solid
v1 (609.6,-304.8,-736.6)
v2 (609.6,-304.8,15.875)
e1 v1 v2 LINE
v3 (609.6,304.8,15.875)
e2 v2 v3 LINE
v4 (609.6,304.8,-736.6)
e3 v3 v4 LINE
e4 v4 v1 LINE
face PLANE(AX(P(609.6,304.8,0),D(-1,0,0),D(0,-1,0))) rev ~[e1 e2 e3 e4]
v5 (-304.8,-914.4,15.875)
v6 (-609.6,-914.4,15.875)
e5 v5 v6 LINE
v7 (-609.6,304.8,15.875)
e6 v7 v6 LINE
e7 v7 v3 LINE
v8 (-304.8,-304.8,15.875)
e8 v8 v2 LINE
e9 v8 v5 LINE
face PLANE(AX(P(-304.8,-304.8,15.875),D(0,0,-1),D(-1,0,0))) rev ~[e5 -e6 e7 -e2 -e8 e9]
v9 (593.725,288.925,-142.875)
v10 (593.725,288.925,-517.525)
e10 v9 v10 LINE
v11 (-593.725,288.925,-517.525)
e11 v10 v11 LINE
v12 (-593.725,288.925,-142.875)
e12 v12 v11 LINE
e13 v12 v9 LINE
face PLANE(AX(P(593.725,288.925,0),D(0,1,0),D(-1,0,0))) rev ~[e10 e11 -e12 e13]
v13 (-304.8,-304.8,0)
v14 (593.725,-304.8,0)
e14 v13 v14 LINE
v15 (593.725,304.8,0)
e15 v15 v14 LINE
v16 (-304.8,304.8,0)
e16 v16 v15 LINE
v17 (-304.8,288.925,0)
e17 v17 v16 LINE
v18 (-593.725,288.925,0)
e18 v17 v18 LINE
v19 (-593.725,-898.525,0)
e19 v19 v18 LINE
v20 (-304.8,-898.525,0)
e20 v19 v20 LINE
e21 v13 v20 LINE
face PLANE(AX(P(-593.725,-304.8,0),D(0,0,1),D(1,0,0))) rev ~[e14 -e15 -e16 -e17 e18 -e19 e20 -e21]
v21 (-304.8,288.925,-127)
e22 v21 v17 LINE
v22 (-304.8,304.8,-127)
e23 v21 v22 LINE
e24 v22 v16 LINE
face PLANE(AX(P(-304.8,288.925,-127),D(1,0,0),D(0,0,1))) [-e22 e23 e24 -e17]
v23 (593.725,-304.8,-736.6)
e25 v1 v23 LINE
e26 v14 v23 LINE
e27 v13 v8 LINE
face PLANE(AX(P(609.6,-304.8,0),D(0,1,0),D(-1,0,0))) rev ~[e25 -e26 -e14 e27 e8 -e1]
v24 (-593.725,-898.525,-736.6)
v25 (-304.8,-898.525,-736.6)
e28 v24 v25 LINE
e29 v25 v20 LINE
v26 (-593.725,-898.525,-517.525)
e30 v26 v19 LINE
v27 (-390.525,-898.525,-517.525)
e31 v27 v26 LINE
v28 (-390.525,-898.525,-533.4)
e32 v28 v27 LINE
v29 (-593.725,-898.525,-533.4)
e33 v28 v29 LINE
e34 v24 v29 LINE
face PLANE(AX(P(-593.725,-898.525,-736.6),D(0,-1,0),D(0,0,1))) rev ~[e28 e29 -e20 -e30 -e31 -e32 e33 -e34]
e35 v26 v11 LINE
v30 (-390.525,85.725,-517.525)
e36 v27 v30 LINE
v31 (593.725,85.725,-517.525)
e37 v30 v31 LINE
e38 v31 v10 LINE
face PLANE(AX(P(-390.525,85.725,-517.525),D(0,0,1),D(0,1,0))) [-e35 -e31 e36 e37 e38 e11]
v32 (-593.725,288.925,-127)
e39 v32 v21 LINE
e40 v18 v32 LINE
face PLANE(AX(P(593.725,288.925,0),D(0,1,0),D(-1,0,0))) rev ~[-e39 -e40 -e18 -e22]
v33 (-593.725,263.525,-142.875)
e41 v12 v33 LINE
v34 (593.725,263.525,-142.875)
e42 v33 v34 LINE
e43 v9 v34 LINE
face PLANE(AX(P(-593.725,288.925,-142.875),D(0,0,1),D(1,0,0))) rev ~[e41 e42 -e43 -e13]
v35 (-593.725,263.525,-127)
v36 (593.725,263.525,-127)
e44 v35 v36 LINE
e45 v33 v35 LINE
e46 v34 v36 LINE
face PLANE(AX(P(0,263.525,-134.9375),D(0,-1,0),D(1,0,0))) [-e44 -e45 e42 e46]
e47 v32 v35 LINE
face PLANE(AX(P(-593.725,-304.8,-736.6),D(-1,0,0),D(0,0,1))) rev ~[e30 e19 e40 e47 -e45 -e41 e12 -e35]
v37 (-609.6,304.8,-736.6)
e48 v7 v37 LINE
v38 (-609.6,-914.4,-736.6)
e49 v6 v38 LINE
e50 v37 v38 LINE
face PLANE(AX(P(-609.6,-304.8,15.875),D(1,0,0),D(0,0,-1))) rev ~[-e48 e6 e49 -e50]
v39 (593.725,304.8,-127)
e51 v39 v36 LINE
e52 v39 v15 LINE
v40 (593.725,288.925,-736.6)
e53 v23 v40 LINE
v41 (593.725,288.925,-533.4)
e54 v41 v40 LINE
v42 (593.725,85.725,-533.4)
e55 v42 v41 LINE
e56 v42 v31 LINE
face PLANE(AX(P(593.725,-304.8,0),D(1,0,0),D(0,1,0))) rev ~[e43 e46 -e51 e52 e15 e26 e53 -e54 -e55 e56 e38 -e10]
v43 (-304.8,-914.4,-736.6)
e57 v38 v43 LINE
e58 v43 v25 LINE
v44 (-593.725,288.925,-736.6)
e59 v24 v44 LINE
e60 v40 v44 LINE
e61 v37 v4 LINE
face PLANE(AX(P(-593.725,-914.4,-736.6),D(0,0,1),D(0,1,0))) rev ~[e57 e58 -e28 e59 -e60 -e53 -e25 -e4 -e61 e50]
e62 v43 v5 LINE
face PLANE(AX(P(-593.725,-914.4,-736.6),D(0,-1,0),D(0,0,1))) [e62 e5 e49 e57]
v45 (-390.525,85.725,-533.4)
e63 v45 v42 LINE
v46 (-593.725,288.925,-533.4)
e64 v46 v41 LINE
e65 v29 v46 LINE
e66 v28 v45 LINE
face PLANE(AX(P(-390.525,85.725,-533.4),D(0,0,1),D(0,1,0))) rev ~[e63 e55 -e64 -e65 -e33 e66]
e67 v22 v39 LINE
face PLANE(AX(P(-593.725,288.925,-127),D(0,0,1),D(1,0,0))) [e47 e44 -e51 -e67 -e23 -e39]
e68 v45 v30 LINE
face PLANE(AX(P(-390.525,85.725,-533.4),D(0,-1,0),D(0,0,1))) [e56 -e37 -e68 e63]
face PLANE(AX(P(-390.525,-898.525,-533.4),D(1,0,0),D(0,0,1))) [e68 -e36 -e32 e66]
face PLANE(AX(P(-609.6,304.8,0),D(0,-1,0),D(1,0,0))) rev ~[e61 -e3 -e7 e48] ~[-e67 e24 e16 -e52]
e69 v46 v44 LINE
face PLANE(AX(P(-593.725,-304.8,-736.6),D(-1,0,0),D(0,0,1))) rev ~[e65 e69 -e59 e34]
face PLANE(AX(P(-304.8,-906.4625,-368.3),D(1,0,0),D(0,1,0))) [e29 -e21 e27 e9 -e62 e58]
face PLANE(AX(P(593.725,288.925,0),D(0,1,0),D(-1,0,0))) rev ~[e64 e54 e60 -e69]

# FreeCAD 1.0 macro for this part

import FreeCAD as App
import Part
import Sketcher
Q = App.Units.Quantity

doc = App.newDocument("Part")
body = doc.addObject("PartDesign::Body", "Body")

# Sketch on XY plane
sketch1 = body.newObject("Sketcher::SketchObject", "Sketch")
sketch1.AttachmentSupport = (doc.getObject("XY_Plane"), [""])
sketch1.MapMode = "FlatFace"
sketch1.addGeometry(Part.LineSegment(App.Vector(-609.6, 304.8, 0), App.Vector(-609.6, -304.8, 0)), False)
sketch1.addGeometry(Part.LineSegment(App.Vector(-609.6, -304.8, 0), App.Vector(609.6, -304.8, 0)), False)
sketch1.addGeometry(Part.LineSegment(App.Vector(609.6, -304.8, 0), App.Vector(609.6, 304.8, 0)), False)
sketch1.addGeometry(Part.LineSegment(App.Vector(609.6, 304.8, 0), App.Vector(-609.6, 304.8, 0)), False)
sketch1.addConstraint(Sketcher.Constraint("Coincident", 0, 2, 1, 1))
sketch1.addConstraint(Sketcher.Constraint("Coincident", 1, 2, 2, 1))
sketch1.addConstraint(Sketcher.Constraint("Coincident", 2, 2, 3, 1))
sketch1.addConstraint(Sketcher.Constraint("Coincident", 3, 2, 0, 1))
sketch1.addConstraint(Sketcher.Constraint("Vertical", 0))
sketch1.addConstraint(Sketcher.Constraint("Horizontal", 1))
sketch1.addConstraint(Sketcher.Constraint("Vertical", 2))
sketch1.addConstraint(Sketcher.Constraint("Horizontal", 3))
sketch1.addConstraint(Sketcher.Constraint("Symmetric", 0, 2, 2, 2, -1, 1))
sketch1.addConstraint(Sketcher.Constraint("DistanceX", 1, 1, 1, 2, Q("48 in")))
sketch1.addConstraint(Sketcher.Constraint("DistanceY", 0, 2, 0, 1, Q("24 in")))
pad1 = body.newObject("PartDesign::Pad", "Pad")
pad1.Profile = sketch1
pad1.Length = Q("0.625 in")

# Sketch on XY plane
sketch2 = body.newObject("Sketcher::SketchObject", "Sketch001")
sketch2.AttachmentSupport = (doc.getObject("XY_Plane"), [""])
sketch2.MapMode = "FlatFace"
sketch2.addGeometry(Part.LineSegment(App.Vector(593.725, 288.925, 0), App.Vector(-593.725, 288.925, 0)), False)
sketch2.addGeometry(Part.LineSegment(App.Vector(-593.725, 288.925, 0), App.Vector(-593.725, -304.8, 0)), False)
sketch2.addGeometry(Part.LineSegment(App.Vector(-593.725, -304.8, 0), App.Vector(-609.6, -304.8, 0)), False)
sketch2.addGeometry(Part.LineSegment(App.Vector(-609.6, -304.8, 0), App.Vector(-609.6, 304.8, 0)), False)
sketch2.addGeometry(Part.LineSegment(App.Vector(-609.6, 304.8, 0), App.Vector(609.6, 304.8, 0)), False)
sketch2.addGeometry(Part.LineSegment(App.Vector(609.6, 304.8, 0), App.Vector(609.6, -304.8, 0)), False)
sketch2.addGeometry(Part.LineSegment(App.Vector(609.6, -304.8, 0), App.Vector(593.725, -304.8, 0)), False)
sketch2.addGeometry(Part.LineSegment(App.Vector(593.725, -304.8, 0), App.Vector(593.725, 288.925, 0)), False)
sketch2.addConstraint(Sketcher.Constraint("Coincident", 0, 2, 1, 1))
sketch2.addConstraint(Sketcher.Constraint("Coincident", 1, 2, 2, 1))
sketch2.addConstraint(Sketcher.Constraint("Coincident", 2, 2, 3, 1))
sketch2.addConstraint(Sketcher.Constraint("Coincident", 3, 2, 4, 1))
sketch2.addConstraint(Sketcher.Constraint("Coincident", 4, 2, 5, 1))
sketch2.addConstraint(Sketcher.Constraint("Coincident", 5, 2, 6, 1))
sketch2.addConstraint(Sketcher.Constraint("Coincident", 6, 2, 7, 1))
sketch2.addConstraint(Sketcher.Constraint("Coincident", 7, 2, 0, 1))
sketch2.addConstraint(Sketcher.Constraint("Horizontal", 0))
sketch2.addConstraint(Sketcher.Constraint("Vertical", 1))
sketch2.addConstraint(Sketcher.Constraint("Horizontal", 2))
sketch2.addConstraint(Sketcher.Constraint("Vertical", 3))
sketch2.addConstraint(Sketcher.Constraint("Horizontal", 4))
sketch2.addConstraint(Sketcher.Constraint("Vertical", 5))
sketch2.addConstraint(Sketcher.Constraint("Horizontal", 6))
sketch2.addConstraint(Sketcher.Constraint("Vertical", 7))
sketch2.addConstraint(Sketcher.Constraint("Symmetric", 2, 2, 4, 2, -1, 1))
sketch2.addConstraint(Sketcher.Constraint("Symmetric", 1, 2, 6, 2, -2))
sketch2.addConstraint(Sketcher.Constraint("DistanceX", 4, 1, 4, 2, Q("48 in")))
sketch2.addConstraint(Sketcher.Constraint("DistanceY", 3, 1, 3, 2, Q("24 in")))
sketch2.addConstraint(Sketcher.Constraint("DistanceX", 0, 2, 0, 1, Q("46.75 in")))
sketch2.addConstraint(Sketcher.Constraint("DistanceY", 1, 2, 1, 1, Q("23.375 in")))
pad2 = body.newObject("PartDesign::Pad", "Pad001")
pad2.Profile = sketch2
pad2.Length = Q("29 in")
pad2.Reversed = True

# Sketch on XZ plane
sketch3 = body.newObject("Sketcher::SketchObject", "Sketch002")
sketch3.AttachmentSupport = (doc.getObject("XZ_Plane"), [""])
sketch3.MapMode = "FlatFace"
sketch3.AttachmentOffset = App.Placement(App.Vector(0, 0, -11.375 * 25.4), App.Rotation())
sketch3.addGeometry(Part.LineSegment(App.Vector(-593.725, -127, 0), App.Vector(-593.725, -142.875, 0)), False)
sketch3.addGeometry(Part.LineSegment(App.Vector(-593.725, -142.875, 0), App.Vector(593.725, -142.875, 0)), False)
sketch3.addGeometry(Part.LineSegment(App.Vector(593.725, -142.875, 0), App.Vector(593.725, -127, 0)), False)
sketch3.addGeometry(Part.LineSegment(App.Vector(593.725, -127, 0), App.Vector(-593.725, -127, 0)), False)
sketch3.addConstraint(Sketcher.Constraint("Coincident", 0, 2, 1, 1))
sketch3.addConstraint(Sketcher.Constraint("Coincident", 1, 2, 2, 1))
sketch3.addConstraint(Sketcher.Constraint("Coincident", 2, 2, 3, 1))
sketch3.addConstraint(Sketcher.Constraint("Coincident", 3, 2, 0, 1))
sketch3.addConstraint(Sketcher.Constraint("Vertical", 0))
sketch3.addConstraint(Sketcher.Constraint("Horizontal", 1))
sketch3.addConstraint(Sketcher.Constraint("Vertical", 2))
sketch3.addConstraint(Sketcher.Constraint("Horizontal", 3))
sketch3.addConstraint(Sketcher.Constraint("DistanceY", 2, 2, -1, 1, Q("5 in")))
sketch3.addConstraint(Sketcher.Constraint("DistanceX", 1, 1, 1, 2, Q("46.75 in")))
sketch3.addConstraint(Sketcher.Constraint("DistanceY", 0, 2, 0, 1, Q("0.625 in")))
sketch3.addConstraint(Sketcher.Constraint("DistanceX", 0, 2, -1, 1, Q("23.375 in")))
pad3 = body.newObject("PartDesign::Pad", "Pad002")
pad3.Profile = sketch3
pad3.Length = Q("1 in")

# Sketch on XZ plane
sketch4 = body.newObject("Sketcher::SketchObject", "Sketch003")
sketch4.AttachmentSupport = (doc.getObject("XZ_Plane"), [""])
sketch4.MapMode = "FlatFace"
sketch4.AttachmentOffset = App.Placement(App.Vector(0, 0, -11.375 * 25.4), App.Rotation())
sketch4.addGeometry(Part.LineSegment(App.Vector(-304.8, 0, 0), App.Vector(-304.8, -127, 0)), False)
sketch4.addGeometry(Part.LineSegment(App.Vector(-304.8, -127, 0), App.Vector(593.725, -127, 0)), False)
sketch4.addGeometry(Part.LineSegment(App.Vector(593.725, -127, 0), App.Vector(593.725, 0, 0)), False)
sketch4.addGeometry(Part.LineSegment(App.Vector(593.725, 0, 0), App.Vector(-304.8, 0, 0)), False)
sketch4.addConstraint(Sketcher.Constraint("Coincident", 0, 2, 1, 1))
sketch4.addConstraint(Sketcher.Constraint("Coincident", 1, 2, 2, 1))
sketch4.addConstraint(Sketcher.Constraint("Coincident", 2, 2, 3, 1))
sketch4.addConstraint(Sketcher.Constraint("Coincident", 3, 2, 0, 1))
sketch4.addConstraint(Sketcher.Constraint("Vertical", 0))
sketch4.addConstraint(Sketcher.Constraint("Horizontal", 1))
sketch4.addConstraint(Sketcher.Constraint("Vertical", 2))
sketch4.addConstraint(Sketcher.Constraint("Horizontal", 3))
sketch4.addConstraint(Sketcher.Constraint("PointOnObject", 2, 2, -1))
sketch4.addConstraint(Sketcher.Constraint("DistanceY", 0, 2, 0, 1, Q("5 in")))
sketch4.addConstraint(Sketcher.Constraint("DistanceX", 0, 2, -1, 1, Q("12 in")))
sketch4.addConstraint(Sketcher.Constraint("DistanceX", 1, 1, 1, 2, Q("35.375 in")))
pocket1 = body.newObject("PartDesign::Pocket", "Pocket")
pocket1.Profile = sketch4
pocket1.Length = Q("1 in")

# Sketch on XZ plane
sketch5 = body.newObject("Sketcher::SketchObject", "Sketch004")
sketch5.AttachmentSupport = (doc.getObject("XZ_Plane"), [""])
sketch5.MapMode = "FlatFace"
sketch5.AttachmentOffset = App.Placement(App.Vector(0, 0, 12 * 25.4), App.Rotation())
sketch5.addGeometry(Part.LineSegment(App.Vector(-304.8, 0, 0), App.Vector(-304.8, 15.875, 0)), False)
sketch5.addGeometry(Part.LineSegment(App.Vector(-304.8, 15.875, 0), App.Vector(-609.6, 15.875, 0)), False)
sketch5.addGeometry(Part.LineSegment(App.Vector(-609.6, 15.875, 0), App.Vector(-609.6, -736.6, 0)), False)
sketch5.addGeometry(Part.LineSegment(App.Vector(-609.6, -736.6, 0), App.Vector(-593.725, -736.6, 0)), False)
sketch5.addGeometry(Part.LineSegment(App.Vector(-593.725, -736.6, 0), App.Vector(-593.725, 0, 0)), False)
sketch5.addGeometry(Part.LineSegment(App.Vector(-593.725, 0, 0), App.Vector(-304.8, 0, 0)), False)
sketch5.addConstraint(Sketcher.Constraint("Coincident", 0, 2, 1, 1))
sketch5.addConstraint(Sketcher.Constraint("Coincident", 1, 2, 2, 1))
sketch5.addConstraint(Sketcher.Constraint("Coincident", 2, 2, 3, 1))
sketch5.addConstraint(Sketcher.Constraint("Coincident", 3, 2, 4, 1))
sketch5.addConstraint(Sketcher.Constraint("Coincident", 4, 2, 5, 1))
sketch5.addConstraint(Sketcher.Constraint("Coincident", 5, 2, 0, 1))
sketch5.addConstraint(Sketcher.Constraint("Vertical", 0))
sketch5.addConstraint(Sketcher.Constraint("Horizontal", 1))
sketch5.addConstraint(Sketcher.Constraint("Vertical", 2))
sketch5.addConstraint(Sketcher.Constraint("Horizontal", 3))
sketch5.addConstraint(Sketcher.Constraint("Vertical", 4))
sketch5.addConstraint(Sketcher.Constraint("Horizontal", 5))
sketch5.addConstraint(Sketcher.Constraint("PointOnObject", 4, 2, -1))
sketch5.addConstraint(Sketcher.Constraint("Equal", 3, 0))
sketch5.addConstraint(Sketcher.Constraint("DistanceX", 1, 2, 1, 1, Q("12 in")))
sketch5.addConstraint(Sketcher.Constraint("DistanceY", 4, 1, 4, 2, Q("29 in")))
sketch5.addConstraint(Sketcher.Constraint("DistanceX", 0, 2, -1, 1, Q("12 in")))
sketch5.addConstraint(Sketcher.Constraint("DistanceX", 3, 1, 3, 2, Q("0.625 in")))
pad4 = body.newObject("PartDesign::Pad", "Pad003")
pad4.Profile = sketch5
pad4.Length = Q("24 in")

# Sketch on YZ plane
sketch6 = body.newObject("Sketcher::SketchObject", "Sketch005")
sketch6.AttachmentSupport = (doc.getObject("YZ_Plane"), [""])
sketch6.MapMode = "FlatFace"
sketch6.AttachmentOffset = App.Placement(App.Vector(0, 0, -23.375 * 25.4), App.Rotation())
sketch6.addGeometry(Part.LineSegment(App.Vector(-914.4, 0, 0), App.Vector(-914.4, -736.6, 0)), False)
sketch6.addGeometry(Part.LineSegment(App.Vector(-914.4, -736.6, 0), App.Vector(-898.525, -736.6, 0)), False)
sketch6.addGeometry(Part.LineSegment(App.Vector(-898.525, -736.6, 0), App.Vector(-898.525, 0, 0)), False)
sketch6.addGeometry(Part.LineSegment(App.Vector(-898.525, 0, 0), App.Vector(-914.4, 0, 0)), False)
sketch6.addConstraint(Sketcher.Constraint("Coincident", 0, 2, 1, 1))
sketch6.addConstraint(Sketcher.Constraint("Coincident", 1, 2, 2, 1))
sketch6.addConstraint(Sketcher.Constraint("Coincident", 2, 2, 3, 1))
sketch6.addConstraint(Sketcher.Constraint("Coincident", 3, 2, 0, 1))
sketch6.addConstraint(Sketcher.Constraint("Vertical", 0))
sketch6.addConstraint(Sketcher.Constraint("Horizontal", 1))
sketch6.addConstraint(Sketcher.Constraint("Vertical", 2))
sketch6.addConstraint(Sketcher.Constraint("Horizontal", 3))
sketch6.addConstraint(Sketcher.Constraint("PointOnObject", 2, 2, -1))
sketch6.addConstraint(Sketcher.Constraint("DistanceY", 0, 2, 0, 1, Q("29 in")))
sketch6.addConstraint(Sketcher.Constraint("DistanceX", 0, 2, -1, 1, Q("36 in")))
sketch6.addConstraint(Sketcher.Constraint("DistanceX", 1, 1, 1, 2, Q("0.625 in")))
pad5 = body.newObject("PartDesign::Pad", "Pad004")
pad5.Profile = sketch6
pad5.Length = Q("11.375 in")

# Sketch on XZ plane
sketch7 = body.newObject("Sketcher::SketchObject", "Sketch006")
sketch7.AttachmentSupport = (doc.getObject("XZ_Plane"), [""])
sketch7.MapMode = "FlatFace"
sketch7.AttachmentOffset = App.Placement(App.Vector(0, 0, 35.375 * 25.4), App.Rotation())
sketch7.addGeometry(Part.LineSegment(App.Vector(-390.525, -517.525, 0), App.Vector(-390.525, -533.4, 0)), False)
sketch7.addGeometry(Part.LineSegment(App.Vector(-390.525, -533.4, 0), App.Vector(-593.725, -533.4, 0)), False)
sketch7.addGeometry(Part.LineSegment(App.Vector(-593.725, -533.4, 0), App.Vector(-593.725, -517.525, 0)), False)
sketch7.addGeometry(Part.LineSegment(App.Vector(-593.725, -517.525, 0), App.Vector(-390.525, -517.525, 0)), False)
sketch7.addConstraint(Sketcher.Constraint("Coincident", 0, 2, 1, 1))
sketch7.addConstraint(Sketcher.Constraint("Coincident", 1, 2, 2, 1))
sketch7.addConstraint(Sketcher.Constraint("Coincident", 2, 2, 3, 1))
sketch7.addConstraint(Sketcher.Constraint("Coincident", 3, 2, 0, 1))
sketch7.addConstraint(Sketcher.Constraint("Vertical", 0))
sketch7.addConstraint(Sketcher.Constraint("Horizontal", 1))
sketch7.addConstraint(Sketcher.Constraint("Vertical", 2))
sketch7.addConstraint(Sketcher.Constraint("Horizontal", 3))
sketch7.addConstraint(Sketcher.Constraint("DistanceX", 1, 2, 1, 1, Q("8 in")))
sketch7.addConstraint(Sketcher.Constraint("DistanceY", 0, 2, -1, 1, Q("21 in")))
sketch7.addConstraint(Sketcher.Constraint("DistanceY", 0, 2, 0, 1, Q("0.625 in")))
sketch7.addConstraint(Sketcher.Constraint("DistanceX", 0, 2, -1, 1, Q("15.375 in")))
pad6 = body.newObject("PartDesign::Pad", "Pad005")
pad6.Profile = sketch7
pad6.Length = Q("46.75 in")
pad6.Reversed = True

# Sketch on YZ plane
sketch8 = body.newObject("Sketcher::SketchObject", "Sketch007")
sketch8.AttachmentSupport = (doc.getObject("YZ_Plane"), [""])
sketch8.MapMode = "FlatFace"
sketch8.AttachmentOffset = App.Placement(App.Vector(0, 0, -15.375 * 25.4), App.Rotation())
sketch8.addGeometry(Part.LineSegment(App.Vector(85.725, -517.525, 0), App.Vector(85.725, -533.4, 0)), False)
sketch8.addGeometry(Part.LineSegment(App.Vector(85.725, -533.4, 0), App.Vector(288.925, -533.4, 0)), False)
sketch8.addGeometry(Part.LineSegment(App.Vector(288.925, -533.4, 0), App.Vector(288.925, -517.525, 0)), False)
sketch8.addGeometry(Part.LineSegment(App.Vector(288.925, -517.525, 0), App.Vector(85.725, -517.525, 0)), False)
sketch8.addConstraint(Sketcher.Constraint("Coincident", 0, 2, 1, 1))
sketch8.addConstraint(Sketcher.Constraint("Coincident", 1, 2, 2, 1))
sketch8.addConstraint(Sketcher.Constraint("Coincident", 2, 2, 3, 1))
sketch8.addConstraint(Sketcher.Constraint("Coincident", 3, 2, 0, 1))
sketch8.addConstraint(Sketcher.Constraint("Vertical", 0))
sketch8.addConstraint(Sketcher.Constraint("Horizontal", 1))
sketch8.addConstraint(Sketcher.Constraint("Vertical", 2))
sketch8.addConstraint(Sketcher.Constraint("Horizontal", 3))
sketch8.addConstraint(Sketcher.Constraint("DistanceX", 1, 1, 1, 2, Q("8 in")))
sketch8.addConstraint(Sketcher.Constraint("DistanceY", 0, 2, -1, 1, Q("21 in")))
sketch8.addConstraint(Sketcher.Constraint("DistanceY", 0, 2, 0, 1, Q("0.625 in")))
sketch8.addConstraint(Sketcher.Constraint("DistanceX", -1, 1, 0, 2, Q("3.375 in")))
pad7 = body.newObject("PartDesign::Pad", "Pad006")
pad7.Profile = sketch8
pad7.Length = Q("38.75 in")

doc.recompute()
